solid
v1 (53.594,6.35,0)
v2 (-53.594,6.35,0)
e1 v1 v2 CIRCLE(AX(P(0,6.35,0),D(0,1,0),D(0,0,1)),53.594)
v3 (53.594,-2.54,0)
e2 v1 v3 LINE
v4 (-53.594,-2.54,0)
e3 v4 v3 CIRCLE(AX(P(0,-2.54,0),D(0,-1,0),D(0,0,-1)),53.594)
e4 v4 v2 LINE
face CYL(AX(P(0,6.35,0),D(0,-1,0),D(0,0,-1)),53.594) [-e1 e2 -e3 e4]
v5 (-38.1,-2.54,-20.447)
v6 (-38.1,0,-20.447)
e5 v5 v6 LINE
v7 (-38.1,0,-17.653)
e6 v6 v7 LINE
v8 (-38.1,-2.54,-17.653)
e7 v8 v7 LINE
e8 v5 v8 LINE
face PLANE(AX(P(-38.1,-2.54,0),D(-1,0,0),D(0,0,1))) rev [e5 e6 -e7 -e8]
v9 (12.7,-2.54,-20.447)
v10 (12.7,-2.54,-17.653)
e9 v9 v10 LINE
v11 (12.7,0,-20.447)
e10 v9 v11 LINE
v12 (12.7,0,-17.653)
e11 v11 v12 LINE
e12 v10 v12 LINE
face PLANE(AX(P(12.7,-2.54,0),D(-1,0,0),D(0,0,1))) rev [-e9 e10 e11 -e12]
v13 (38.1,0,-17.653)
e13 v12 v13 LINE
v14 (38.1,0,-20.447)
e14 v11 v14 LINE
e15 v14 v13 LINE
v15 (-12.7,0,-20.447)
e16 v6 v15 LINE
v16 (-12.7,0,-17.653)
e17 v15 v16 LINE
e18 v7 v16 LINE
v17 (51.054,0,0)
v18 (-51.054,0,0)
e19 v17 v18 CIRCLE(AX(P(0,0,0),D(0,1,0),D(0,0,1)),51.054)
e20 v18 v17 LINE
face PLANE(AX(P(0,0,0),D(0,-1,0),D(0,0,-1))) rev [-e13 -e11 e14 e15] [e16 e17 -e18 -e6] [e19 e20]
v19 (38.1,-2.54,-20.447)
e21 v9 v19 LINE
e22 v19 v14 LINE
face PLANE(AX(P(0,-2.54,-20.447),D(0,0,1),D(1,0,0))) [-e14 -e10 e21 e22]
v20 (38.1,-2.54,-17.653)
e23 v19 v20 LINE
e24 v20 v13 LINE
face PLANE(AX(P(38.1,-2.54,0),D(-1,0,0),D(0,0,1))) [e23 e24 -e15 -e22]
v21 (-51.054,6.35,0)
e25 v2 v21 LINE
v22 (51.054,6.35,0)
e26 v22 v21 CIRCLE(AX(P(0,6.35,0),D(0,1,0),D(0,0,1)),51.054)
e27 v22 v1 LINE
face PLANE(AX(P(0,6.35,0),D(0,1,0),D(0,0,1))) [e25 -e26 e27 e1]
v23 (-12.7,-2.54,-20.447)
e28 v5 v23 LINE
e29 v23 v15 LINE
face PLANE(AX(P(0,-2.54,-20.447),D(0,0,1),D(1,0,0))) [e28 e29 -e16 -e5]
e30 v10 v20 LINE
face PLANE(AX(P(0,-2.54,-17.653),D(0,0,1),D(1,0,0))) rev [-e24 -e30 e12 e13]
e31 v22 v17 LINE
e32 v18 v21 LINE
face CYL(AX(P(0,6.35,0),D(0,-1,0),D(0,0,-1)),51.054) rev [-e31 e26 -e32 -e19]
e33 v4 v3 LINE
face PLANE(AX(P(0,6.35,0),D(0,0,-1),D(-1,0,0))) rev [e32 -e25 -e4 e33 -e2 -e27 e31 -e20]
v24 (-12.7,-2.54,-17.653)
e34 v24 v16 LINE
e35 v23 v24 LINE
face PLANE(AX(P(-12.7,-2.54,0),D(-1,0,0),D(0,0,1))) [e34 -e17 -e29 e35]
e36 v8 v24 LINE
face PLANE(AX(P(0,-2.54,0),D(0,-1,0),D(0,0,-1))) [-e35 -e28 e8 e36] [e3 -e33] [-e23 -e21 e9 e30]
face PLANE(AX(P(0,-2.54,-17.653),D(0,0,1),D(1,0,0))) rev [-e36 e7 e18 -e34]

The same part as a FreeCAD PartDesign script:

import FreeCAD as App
import Part
import Sketcher

V = App.Vector
Q = App.Units.Quantity

doc = App.newDocument("Part")
body = doc.addObject("PartDesign::Body", "Body")

# Sketch on XZ plane
sketch1 = body.newObject("Sketcher::SketchObject", "Sketch")
sketch1.AttachmentSupport = (doc.getObject("XZ_Plane"), [""])
sketch1.MapMode = "FlatFace"
sketch1.addGeometry([
    Part.Circle(V(0, 0, 0), V(0, 0, 1), 54),
    Part.Circle(V(0, 0, 0), V(0, 0, 1), 51),
], False)
sketch1.addConstraint([
    Sketcher.Constraint("Coincident", 0, 3, -1, 1),
    Sketcher.Constraint("Coincident", 1, 3, -1, 1),
    Sketcher.Constraint("Diameter", 0, Q("4.22 in")),
    Sketcher.Constraint("Diameter", 1, Q("4.02 in")),
])
pad1 = body.newObject("PartDesign::Pad", "Pad")
pad1.Profile = sketch1
pad1.Length = Q("0.25 in")
pad1.Reversed = True

# Sketch on XZ plane
sketch2 = body.newObject("Sketcher::SketchObject", "Sketch001")
sketch2.AttachmentSupport = (doc.getObject("XZ_Plane"), [""])
sketch2.MapMode = "FlatFace"
sketch2.AttachmentOffset = App.Placement(V(0, 0, 0.1 * 25.4), App.Rotation())
sketch2.addGeometry(Part.Circle(V(0, 0, 0), V(0, 0, 1), 54), False)
sketch2.addConstraint([
    Sketcher.Constraint("Coincident", 0, 3, -1, 1),
    Sketcher.Constraint("Diameter", 0, Q("4.22 in")),
])
pad2 = body.newObject("PartDesign::Pad", "Pad001")
pad2.Profile = sketch2
pad2.Length = Q("0.1 in")
pad2.Reversed = True

# Sketch on XZ plane
sketch3 = body.newObject("Sketcher::SketchObject", "Sketch002")
sketch3.AttachmentSupport = (doc.getObject("XZ_Plane"), [""])
sketch3.MapMode = "FlatFace"
sketch3.addGeometry([
    Part.LineSegment(V(-38.1, -20.4, 0), V(-38.1, -17.7, 0)),  # 0
    Part.LineSegment(V(-38.1, -17.7, 0), V(-12.7, -17.7, 0)),  # 1
    Part.LineSegment(V(-12.7, -17.7, 0), V(-12.7, -20.4, 0)),  # 2
    Part.LineSegment(V(-12.7, -20.4, 0), V(-38.1, -20.4, 0)),  # 3
    Part.LineSegment(V(12.7, -20.4, 0), V(12.7, -17.7, 0)),  # 4
    Part.LineSegment(V(12.7, -17.7, 0), V(38.1, -17.7, 0)),  # 5
    Part.LineSegment(V(38.1, -17.7, 0), V(38.1, -20.4, 0)),  # 6
    Part.LineSegment(V(38.1, -20.4, 0), V(12.7, -20.4, 0)),  # 7
], False)
sketch3.addConstraint([
    Sketcher.Constraint("Coincident", 0, 2, 1, 1),
    Sketcher.Constraint("Coincident", 1, 2, 2, 1),
    Sketcher.Constraint("Coincident", 2, 2, 3, 1),
    Sketcher.Constraint("Coincident", 3, 2, 0, 1),
    Sketcher.Constraint("Coincident", 4, 2, 5, 1),
    Sketcher.Constraint("Coincident", 5, 2, 6, 1),
    Sketcher.Constraint("Coincident", 6, 2, 7, 1),
    Sketcher.Constraint("Coincident", 7, 2, 4, 1),
    Sketcher.Constraint("Vertical", 0),
    Sketcher.Constraint("Horizontal", 1),
    Sketcher.Constraint("Vertical", 2),
    Sketcher.Constraint("Horizontal", 3),
    Sketcher.Constraint("Vertical", 4),
    Sketcher.Constraint("Horizontal", 5),
    Sketcher.Constraint("Vertical", 6),
    Sketcher.Constraint("Horizontal", 7),
    Sketcher.Constraint("Symmetric", 1, 2, 4, 2, -2),
    Sketcher.Constraint("Symmetric", 3, 2, 6, 2, -2),
    Sketcher.Constraint("DistanceX", 1, 1, 1, 2, Q("1 in")),
    Sketcher.Constraint("DistanceX", 1, 2, 4, 2, Q("1 in")),
    Sketcher.Constraint("DistanceY", 0, 1, 0, 2, Q("0.11 in")),
    Sketcher.Constraint("DistanceY", 0, 2, -1, 1, Q("0.695 in")),
])
pocket1 = body.newObject("PartDesign::Pocket", "Pocket")
pocket1.Profile = sketch3
pocket1.Type = "ThroughAll"
pocket1.Reversed = True

# Sketch on XZ plane
sketch4 = body.newObject("Sketcher::SketchObject", "Sketch003")
sketch4.AttachmentSupport = (doc.getObject("XZ_Plane"), [""])
sketch4.MapMode = "FlatFace"
sketch4.AttachmentOffset = App.Placement(V(0, 0, 0.1 * 25.4), App.Rotation())
sketch4.addGeometry([
    Part.LineSegment(V(-349, 0, 0), V(349, 0, 0)),
    Part.LineSegment(V(349, 0, 0), V(349, 558, 0)),
    Part.LineSegment(V(349, 558, 0), V(-349, 558, 0)),
    Part.LineSegment(V(-349, 558, 0), V(-349, 0, 0)),
], False)
sketch4.addConstraint([
    Sketcher.Constraint("Coincident", 0, 2, 1, 1),
    Sketcher.Constraint("Coincident", 1, 2, 2, 1),
    Sketcher.Constraint("Coincident", 2, 2, 3, 1),
    Sketcher.Constraint("Coincident", 3, 2, 0, 1),
    Sketcher.Constraint("Horizontal", 0),
    Sketcher.Constraint("Vertical", 1),
    Sketcher.Constraint("Horizontal", 2),
    Sketcher.Constraint("Vertical", 3),
    Sketcher.Constraint("Symmetric", 0, 2, 3, 2, -1, 1),
    Sketcher.Constraint("DistanceX", 0, 1, 0, 2, 698.004568),
    Sketcher.Constraint("DistanceY", 1, 1, 1, 2, 558.304568),
])
pocket2 = body.newObject("PartDesign::Pocket", "Pocket001")
pocket2.Profile = sketch4
pocket2.Type = "ThroughAll"

doc.recompute()
